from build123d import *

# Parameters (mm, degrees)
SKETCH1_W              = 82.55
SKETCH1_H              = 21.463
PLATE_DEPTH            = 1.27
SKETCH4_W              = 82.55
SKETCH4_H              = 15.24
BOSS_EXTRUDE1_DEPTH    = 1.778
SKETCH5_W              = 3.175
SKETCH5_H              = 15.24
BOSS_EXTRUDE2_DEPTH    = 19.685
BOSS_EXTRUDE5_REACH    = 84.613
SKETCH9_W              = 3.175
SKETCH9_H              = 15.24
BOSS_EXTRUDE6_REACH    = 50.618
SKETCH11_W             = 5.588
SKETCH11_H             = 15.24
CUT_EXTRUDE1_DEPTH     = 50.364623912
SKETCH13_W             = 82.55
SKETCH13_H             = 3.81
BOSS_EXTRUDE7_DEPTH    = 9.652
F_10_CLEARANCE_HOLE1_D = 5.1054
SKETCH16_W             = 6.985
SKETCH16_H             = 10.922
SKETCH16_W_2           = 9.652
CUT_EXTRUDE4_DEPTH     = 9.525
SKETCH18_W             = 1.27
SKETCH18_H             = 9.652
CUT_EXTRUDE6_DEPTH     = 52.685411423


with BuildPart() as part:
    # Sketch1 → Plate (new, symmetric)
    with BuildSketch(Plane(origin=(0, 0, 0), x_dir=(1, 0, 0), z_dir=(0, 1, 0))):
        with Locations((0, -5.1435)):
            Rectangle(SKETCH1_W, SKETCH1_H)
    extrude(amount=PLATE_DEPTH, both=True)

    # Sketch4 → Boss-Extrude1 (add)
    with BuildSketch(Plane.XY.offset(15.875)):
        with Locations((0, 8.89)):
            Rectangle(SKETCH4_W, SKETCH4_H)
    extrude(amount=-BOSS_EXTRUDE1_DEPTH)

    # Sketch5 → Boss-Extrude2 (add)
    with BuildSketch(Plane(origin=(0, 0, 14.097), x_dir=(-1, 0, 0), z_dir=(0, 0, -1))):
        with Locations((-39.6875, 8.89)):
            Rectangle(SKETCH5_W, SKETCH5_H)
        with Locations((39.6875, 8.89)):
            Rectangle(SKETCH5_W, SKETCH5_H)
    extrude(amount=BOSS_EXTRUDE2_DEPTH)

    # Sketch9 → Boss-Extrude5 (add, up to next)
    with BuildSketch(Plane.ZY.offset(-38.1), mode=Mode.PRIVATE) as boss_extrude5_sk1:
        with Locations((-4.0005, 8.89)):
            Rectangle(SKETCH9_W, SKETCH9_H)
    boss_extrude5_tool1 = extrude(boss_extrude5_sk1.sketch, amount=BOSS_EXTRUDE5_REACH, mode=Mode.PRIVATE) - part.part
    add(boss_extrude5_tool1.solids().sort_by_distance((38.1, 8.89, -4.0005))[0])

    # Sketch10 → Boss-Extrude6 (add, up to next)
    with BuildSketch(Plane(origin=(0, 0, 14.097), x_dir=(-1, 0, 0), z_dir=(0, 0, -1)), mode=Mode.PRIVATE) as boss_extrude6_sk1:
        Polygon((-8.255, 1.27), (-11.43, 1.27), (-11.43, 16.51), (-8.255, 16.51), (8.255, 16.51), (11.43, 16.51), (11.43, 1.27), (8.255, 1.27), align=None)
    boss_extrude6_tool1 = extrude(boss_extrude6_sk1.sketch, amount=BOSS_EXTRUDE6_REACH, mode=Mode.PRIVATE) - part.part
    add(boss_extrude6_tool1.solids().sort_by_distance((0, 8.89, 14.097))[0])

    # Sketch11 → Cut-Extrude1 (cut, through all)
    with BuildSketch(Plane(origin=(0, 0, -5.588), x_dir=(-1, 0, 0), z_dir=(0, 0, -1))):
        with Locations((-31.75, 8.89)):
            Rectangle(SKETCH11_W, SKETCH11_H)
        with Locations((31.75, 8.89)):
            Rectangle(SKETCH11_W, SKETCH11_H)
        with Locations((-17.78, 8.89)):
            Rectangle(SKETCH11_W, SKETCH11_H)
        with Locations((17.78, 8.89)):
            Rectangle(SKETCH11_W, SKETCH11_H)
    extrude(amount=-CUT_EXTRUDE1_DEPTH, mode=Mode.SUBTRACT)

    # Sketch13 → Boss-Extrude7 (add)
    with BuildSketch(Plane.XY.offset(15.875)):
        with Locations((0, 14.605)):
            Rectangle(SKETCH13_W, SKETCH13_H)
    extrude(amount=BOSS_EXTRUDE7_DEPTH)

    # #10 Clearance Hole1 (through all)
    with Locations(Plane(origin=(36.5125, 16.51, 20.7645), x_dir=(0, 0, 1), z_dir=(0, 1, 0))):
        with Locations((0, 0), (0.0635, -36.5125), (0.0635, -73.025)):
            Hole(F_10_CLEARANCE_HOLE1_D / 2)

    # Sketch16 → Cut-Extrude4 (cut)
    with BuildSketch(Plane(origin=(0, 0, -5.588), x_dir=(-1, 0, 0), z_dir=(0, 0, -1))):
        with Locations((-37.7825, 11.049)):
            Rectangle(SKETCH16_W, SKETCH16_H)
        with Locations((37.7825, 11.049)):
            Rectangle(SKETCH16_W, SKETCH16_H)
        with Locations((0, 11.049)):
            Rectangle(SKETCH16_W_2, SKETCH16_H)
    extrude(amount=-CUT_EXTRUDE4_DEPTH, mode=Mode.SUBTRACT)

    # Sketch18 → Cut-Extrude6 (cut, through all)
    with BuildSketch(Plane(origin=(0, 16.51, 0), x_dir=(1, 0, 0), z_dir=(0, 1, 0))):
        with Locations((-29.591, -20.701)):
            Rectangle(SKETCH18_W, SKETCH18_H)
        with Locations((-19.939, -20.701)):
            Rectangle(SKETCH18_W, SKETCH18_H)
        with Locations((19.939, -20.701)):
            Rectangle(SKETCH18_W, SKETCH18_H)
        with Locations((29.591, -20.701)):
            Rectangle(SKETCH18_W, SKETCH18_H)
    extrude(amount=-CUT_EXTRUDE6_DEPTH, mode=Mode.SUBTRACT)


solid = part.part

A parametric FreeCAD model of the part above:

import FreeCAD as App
import Part
import Sketcher
Q = App.Units.Quantity


def add_polygon(sketch, points):
    """Adds a closed chain of lines whose ends are joined by coincident constraints."""
    first, n = sketch.GeometryCount, len(points)
    for a, b in zip(points, points[1:] + points[:1]):
        sketch.addGeometry(Part.LineSegment(App.Vector(*a, 0), App.Vector(*b, 0)), False)
    for i in range(n):
        sketch.addConstraint(Sketcher.Constraint("Coincident", first + i, 2, first + (i + 1) % n, 1))

doc = App.newDocument("Part")
body = doc.addObject("PartDesign::Body", "Body")

# Sketch on XZ plane
sketch1 = body.newObject("Sketcher::SketchObject", "Sketch")
sketch1.AttachmentSupport = (doc.getObject("XZ_Plane"), [""])
sketch1.MapMode = "FlatFace"
add_polygon(sketch1, [(-41, -6), (-41, 16), (41, 16), (41, -6)])  # lines 0-3
sketch1.addConstraint(Sketcher.Constraint("Vertical", 0))
sketch1.addConstraint(Sketcher.Constraint("Horizontal", 1))
sketch1.addConstraint(Sketcher.Constraint("Vertical", 2))
sketch1.addConstraint(Sketcher.Constraint("Horizontal", 3))
sketch1.addConstraint(Sketcher.Constraint("DistanceX", 1, 1, 1, 2, Q("3.25 in")))
sketch1.addConstraint(Sketcher.Constraint("DistanceY", 0, 1, 0, 2, Q("0.845 in")))
sketch1.addConstraint(Sketcher.Constraint("DistanceY", 2, 2, -1, 1, Q("0.22 in")))
sketch1.addConstraint(Sketcher.Constraint("DistanceX", 0, 2, -1, 1, Q("1.625 in")))
pad1 = body.newObject("PartDesign::Pad", "Pad")
pad1.Profile = sketch1
pad1.Length = Q("0.1 in")
pad1.Midplane = True

# Sketch on XY plane
sketch2 = body.newObject("Sketcher::SketchObject", "Sketch001")
sketch2.AttachmentSupport = (doc.getObject("XY_Plane"), [""])
sketch2.MapMode = "FlatFace"
sketch2.AttachmentOffset = App.Placement(App.Vector(0, 0, 0.625 * 25.4), App.Rotation())
add_polygon(sketch2, [(-41, 17), (-41, 1), (41, 1), (41, 17)])  # lines 0-3
sketch2.addConstraint(Sketcher.Constraint("Vertical", 0))
sketch2.addConstraint(Sketcher.Constraint("Horizontal", 1))
sketch2.addConstraint(Sketcher.Constraint("Vertical", 2))
sketch2.addConstraint(Sketcher.Constraint("Horizontal", 3))
sketch2.addConstraint(Sketcher.Constraint("DistanceY", 0, 2, 0, 1, Q("0.6 in")))
sketch2.addConstraint(Sketcher.Constraint("DistanceX", 1, 1, 1, 2, Q("3.25 in")))
sketch2.addConstraint(Sketcher.Constraint("DistanceY", -1, 1, 0, 2, Q("0.05 in")))
sketch2.addConstraint(Sketcher.Constraint("DistanceX", 0, 2, -1, 1, Q("1.625 in")))
pad2 = body.newObject("PartDesign::Pad", "Pad001")
pad2.Profile = sketch2
pad2.Length = Q("0.07 in")
pad2.Reversed = True

# Sketch on XY plane
sketch3 = body.newObject("Sketcher::SketchObject", "Sketch002")
sketch3.AttachmentSupport = (doc.getObject("XY_Plane"), [""])
sketch3.MapMode = "FlatFace"
sketch3.AttachmentOffset = App.Placement(App.Vector(0, 0, 0.555 * 25.4), App.Rotation())
add_polygon(sketch3, [(41.3, 16.5), (41.3, 1.3), (38.1, 1.3), (38.1, 16.5)])  # lines 0-3
add_polygon(sketch3, [(-38.1, 16.5), (-38.1, 1.3), (-41.3, 1.3), (-41.3, 16.5)])  # lines 4-7
sketch3.addConstraint(Sketcher.Constraint("Vertical", 0))
sketch3.addConstraint(Sketcher.Constraint("Horizontal", 1))
sketch3.addConstraint(Sketcher.Constraint("Vertical", 2))
sketch3.addConstraint(Sketcher.Constraint("Horizontal", 3))
sketch3.addConstraint(Sketcher.Constraint("Vertical", 4))
sketch3.addConstraint(Sketcher.Constraint("Horizontal", 5))
sketch3.addConstraint(Sketcher.Constraint("Vertical", 6))
sketch3.addConstraint(Sketcher.Constraint("Horizontal", 7))
sketch3.addConstraint(Sketcher.Constraint("Symmetric", 1, 2, 4, 2, -2))
sketch3.addConstraint(Sketcher.Constraint("Symmetric", 3, 2, 6, 2, -2))
sketch3.addConstraint(Sketcher.Constraint("DistanceY", 0, 2, 0, 1, Q("0.6 in")))
sketch3.addConstraint(Sketcher.Constraint("DistanceX", 4, 2, 1, 2, Q("3 in")))
sketch3.addConstraint(Sketcher.Constraint("DistanceX", 1, 2, 1, 1, Q("0.125 in")))
sketch3.addConstraint(Sketcher.Constraint("DistanceY", -1, 1, 0, 2, Q("0.05 in")))
pad3 = body.newObject("PartDesign::Pad", "Pad002")
pad3.Profile = sketch3
pad3.Length = Q("0.775 in")
pad3.Reversed = True

# Sketch on YZ plane
sketch4 = body.newObject("Sketcher::SketchObject", "Sketch003")
sketch4.AttachmentSupport = (doc.getObject("YZ_Plane"), [""])
sketch4.MapMode = "FlatFace"
sketch4.AttachmentOffset = App.Placement(App.Vector(0, 0, 1.5 * 25.4), App.Rotation())
add_polygon(sketch4, [(16.5, -5.6), (1.3, -5.6), (1.3, -2.4), (16.5, -2.4)])  # lines 0-3
sketch4.addConstraint(Sketcher.Constraint("Horizontal", 0))
sketch4.addConstraint(Sketcher.Constraint("Vertical", 1))
sketch4.addConstraint(Sketcher.Constraint("Horizontal", 2))
sketch4.addConstraint(Sketcher.Constraint("Vertical", 3))
sketch4.addConstraint(Sketcher.Constraint("DistanceX", 0, 2, 0, 1, Q("0.6 in")))
sketch4.addConstraint(Sketcher.Constraint("DistanceY", 1, 1, 1, 2, Q("0.125 in")))
sketch4.addConstraint(Sketcher.Constraint("DistanceX", -1, 1, 0, 2, Q("0.05 in")))
sketch4.addConstraint(Sketcher.Constraint("DistanceY", 0, 2, -1, 1, Q("0.22 in")))
pad4 = body.newObject("PartDesign::Pad", "Pad003")
pad4.Profile = sketch4
pad4.Type = "UpToFirst"
pad4.Reversed = True

# Sketch on XY plane
sketch5 = body.newObject("Sketcher::SketchObject", "Sketch004")
sketch5.AttachmentSupport = (doc.getObject("XY_Plane"), [""])
sketch5.MapMode = "FlatFace"
sketch5.AttachmentOffset = App.Placement(App.Vector(0, 0, 0.555 * 25.4), App.Rotation())
add_polygon(sketch5, [(11, 1), (-11, 1), (-11, 17), (11, 17)])  # lines 0-3
sketch5.addConstraint(Sketcher.Constraint("Horizontal", 0))
sketch5.addConstraint(Sketcher.Constraint("Vertical", 1))
sketch5.addConstraint(Sketcher.Constraint("Horizontal", 2))
sketch5.addConstraint(Sketcher.Constraint("Vertical", 3))
sketch5.addConstraint(Sketcher.Constraint("DistanceX", 0, 2, 0, 1, Q("0.9 in")))
sketch5.addConstraint(Sketcher.Constraint("DistanceY", 1, 1, 1, 2, Q("0.6 in")))
sketch5.addConstraint(Sketcher.Constraint("DistanceX", 0, 2, -1, 1, Q("0.45 in")))
sketch5.addConstraint(Sketcher.Constraint("DistanceY", -1, 1, 0, 2, Q("0.05 in")))
pad5 = body.newObject("PartDesign::Pad", "Pad004")
pad5.Profile = sketch5
pad5.Type = "UpToFirst"
pad5.Reversed = True

# Sketch on XY plane
sketch6 = body.newObject("Sketcher::SketchObject", "Sketch005")
sketch6.AttachmentSupport = (doc.getObject("XY_Plane"), [""])
sketch6.MapMode = "FlatFace"
sketch6.AttachmentOffset = App.Placement(App.Vector(0, 0, -0.22 * 25.4), App.Rotation())
add_polygon(sketch6, [(35, 17), (35, 1), (29, 1), (29, 17)])  # lines 0-3
add_polygon(sketch6, [(-29, 17), (-29, 1), (-35, 1), (-35, 17)])  # lines 4-7
add_polygon(sketch6, [(21, 17), (21, 1), (15, 1), (15, 17)])  # lines 8-11
add_polygon(sketch6, [(-15, 17), (-15, 1), (-21, 1), (-21, 17)])  # lines 12-15
sketch6.addConstraint(Sketcher.Constraint("Vertical", 0))
sketch6.addConstraint(Sketcher.Constraint("Horizontal", 1))
sketch6.addConstraint(Sketcher.Constraint("Vertical", 2))
sketch6.addConstraint(Sketcher.Constraint("Horizontal", 3))
sketch6.addConstraint(Sketcher.Constraint("Vertical", 4))
sketch6.addConstraint(Sketcher.Constraint("Horizontal", 5))
sketch6.addConstraint(Sketcher.Constraint("Vertical", 6))
sketch6.addConstraint(Sketcher.Constraint("Horizontal", 7))
sketch6.addConstraint(Sketcher.Constraint("Vertical", 8))
sketch6.addConstraint(Sketcher.Constraint("Horizontal", 9))
sketch6.addConstraint(Sketcher.Constraint("Vertical", 10))
sketch6.addConstraint(Sketcher.Constraint("Horizontal", 11))
sketch6.addConstraint(Sketcher.Constraint("Vertical", 12))
sketch6.addConstraint(Sketcher.Constraint("Horizontal", 13))
sketch6.addConstraint(Sketcher.Constraint("Vertical", 14))
sketch6.addConstraint(Sketcher.Constraint("Horizontal", 15))
sketch6.addConstraint(Sketcher.Constraint("Symmetric", 1, 2, 4, 2, -2))
sketch6.addConstraint(Sketcher.Constraint("Symmetric", 3, 2, 6, 2, -2))
sketch6.addConstraint(Sketcher.Constraint("Symmetric", 9, 2, 12, 2, -2))
sketch6.addConstraint(Sketcher.Constraint("Symmetric", 11, 2, 14, 2, -2))
sketch6.addConstraint(Sketcher.Constraint("Horizontal", 5, 2, 8, 2))
sketch6.addConstraint(Sketcher.Constraint("Horizontal", 7, 2, 10, 2))
sketch6.addConstraint(Sketcher.Constraint("Equal", 7, 9))
sketch6.addConstraint(Sketcher.Constraint("DistanceY", 0, 2, 0, 1, Q("0.6 in")))
sketch6.addConstraint(Sketcher.Constraint("DistanceX", 1, 2, 1, 1, Q("0.22 in")))
sketch6.addConstraint(Sketcher.Constraint("DistanceX", 4, 2, 0, 2, Q("2.5 in")))
sketch6.addConstraint(Sketcher.Constraint("DistanceY", -1, 1, 0, 2, Q("0.05 in")))
sketch6.addConstraint(Sketcher.Constraint("DistanceX", -1, 1, 8, 2, Q("0.81 in")))
pocket1 = body.newObject("PartDesign::Pocket", "Pocket")
pocket1.Profile = sketch6
pocket1.Type = "ThroughAll"
pocket1.Reversed = True

# Sketch on XY plane
sketch7 = body.newObject("Sketcher::SketchObject", "Sketch006")
sketch7.AttachmentSupport = (doc.getObject("XY_Plane"), [""])
sketch7.MapMode = "FlatFace"
sketch7.AttachmentOffset = App.Placement(App.Vector(0, 0, 0.625 * 25.4), App.Rotation())
add_polygon(sketch7, [(-41.3, 16.5), (-41.3, 12.7), (41.3, 12.7), (41.3, 16.5)])  # lines 0-3
sketch7.addConstraint(Sketcher.Constraint("Vertical", 0))
sketch7.addConstraint(Sketcher.Constraint("Horizontal", 1))
sketch7.addConstraint(Sketcher.Constraint("Vertical", 2))
sketch7.addConstraint(Sketcher.Constraint("Horizontal", 3))
sketch7.addConstraint(Sketcher.Constraint("DistanceX", 1, 1, 1, 2, Q("3.25 in")))
sketch7.addConstraint(Sketcher.Constraint("DistanceY", 0, 2, 0, 1, Q("0.15 in")))
sketch7.addConstraint(Sketcher.Constraint("DistanceY", -1, 1, 0, 2, Q("0.5 in")))
sketch7.addConstraint(Sketcher.Constraint("DistanceX", 0, 2, -1, 1, Q("1.625 in")))
pad6 = body.newObject("PartDesign::Pad", "Pad005")
pad6.Profile = sketch7
pad6.Length = Q("0.38 in")

# Sketch on XZ plane
sketch8 = body.newObject("Sketcher::SketchObject", "Sketch007")
sketch8.AttachmentSupport = (doc.getObject("XZ_Plane"), [""])
sketch8.MapMode = "FlatFace"
sketch8.AttachmentOffset = App.Placement(App.Vector(0, 0, -0.65 * 25.4), App.Rotation())
sketch8.addGeometry(Part.Circle(App.Vector(36.5, 20.8, 0), App.Vector(0, 0, 1), 2.6), False)
sketch8.addGeometry(Part.Circle(App.Vector(0, 20.8, 0), App.Vector(0, 0, 1), 2.6), False)
sketch8.addGeometry(Part.Circle(App.Vector(-36.5, 20.8, 0), App.Vector(0, 0, 1), 2.6), False)
sketch8.addConstraint(Sketcher.Constraint("Equal", 0, 1))
sketch8.addConstraint(Sketcher.Constraint("Equal", 1, 2))
sketch8.addConstraint(Sketcher.Constraint("PointOnObject", 1, 3, -2))
sketch8.addConstraint(Sketcher.Constraint("Horizontal", 1, 3, 2, 3))
sketch8.addConstraint(Sketcher.Constraint("Diameter", 0, Q("0.201 in")))
sketch8.addConstraint(Sketcher.Constraint("DistanceY", -1, 1, 1, 3, Q("0.82 in")))
sketch8.addConstraint(Sketcher.Constraint("DistanceX", -1, 1, 0, 3, Q("1.4375 in")))
sketch8.addConstraint(Sketcher.Constraint("DistanceX", 2, 3, -1, 1, Q("1.4375 in")))
sketch8.addConstraint(Sketcher.Constraint("DistanceY", -1, 1, 0, 3, Q("0.8175 in")))
doc.recompute()
hole = body.newObject("PartDesign::Hole", "Hole")
hole.Profile = sketch8
hole.ThreadType = "None"
hole.Diameter = Q("0.201 in")
hole.DepthType = "ThroughAll"
hole.Reversed = True

# Sketch on XY plane
sketch9 = body.newObject("Sketcher::SketchObject", "Sketch008")
sketch9.AttachmentSupport = (doc.getObject("XY_Plane"), [""])
sketch9.MapMode = "FlatFace"
sketch9.AttachmentOffset = App.Placement(App.Vector(0, 0, -0.22 * 25.4), App.Rotation())
add_polygon(sketch9, [(41, 17), (41, 6), (34, 6), (34, 17)])  # lines 0-3
add_polygon(sketch9, [(-34, 17), (-34, 6), (-41, 6), (-41, 17)])  # lines 4-7
add_polygon(sketch9, [(5, 17), (5, 6), (-5, 6), (-5, 17)])  # lines 8-11
sketch9.addConstraint(Sketcher.Constraint("Vertical", 0))
sketch9.addConstraint(Sketcher.Constraint("Horizontal", 1))
sketch9.addConstraint(Sketcher.Constraint("Vertical", 2))
sketch9.addConstraint(Sketcher.Constraint("Horizontal", 3))
sketch9.addConstraint(Sketcher.Constraint("Vertical", 4))
sketch9.addConstraint(Sketcher.Constraint("Horizontal", 5))
sketch9.addConstraint(Sketcher.Constraint("Vertical", 6))
sketch9.addConstraint(Sketcher.Constraint("Horizontal", 7))
sketch9.addConstraint(Sketcher.Constraint("Vertical", 8))
sketch9.addConstraint(Sketcher.Constraint("Horizontal", 9))
sketch9.addConstraint(Sketcher.Constraint("Vertical", 10))
sketch9.addConstraint(Sketcher.Constraint("Horizontal", 11))
sketch9.addConstraint(Sketcher.Constraint("Symmetric", 1, 2, 4, 2, -2))
sketch9.addConstraint(Sketcher.Constraint("Symmetric", 3, 2, 6, 2, -2))
sketch9.addConstraint(Sketcher.Constraint("Horizontal", 5, 2, 8, 2))
sketch9.addConstraint(Sketcher.Constraint("Horizontal", 7, 2, 10, 2))
sketch9.addConstraint(Sketcher.Constraint("DistanceX", 9, 2, 9, 1, Q("0.38 in")))
sketch9.addConstraint(Sketcher.Constraint("DistanceY", 0, 2, 0, 1, Q("0.43 in")))
sketch9.addConstraint(Sketcher.Constraint("DistanceX", 4, 2, 1, 2, Q("2.7 in")))
sketch9.addConstraint(Sketcher.Constraint("DistanceX", 1, 2, 1, 1, Q("0.275 in")))
sketch9.addConstraint(Sketcher.Constraint("DistanceY", -1, 1, 0, 2, Q("0.22 in")))
sketch9.addConstraint(Sketcher.Constraint("DistanceX", -1, 1, 8, 2, Q("0.19 in")))
pocket2 = body.newObject("PartDesign::Pocket", "Pocket001")
pocket2.Profile = sketch9
pocket2.Length = Q("0.375 in")
pocket2.Reversed = True

# Sketch on XZ plane
sketch10 = body.newObject("Sketcher::SketchObject", "Sketch009")
sketch10.AttachmentSupport = (doc.getObject("XZ_Plane"), [""])
sketch10.MapMode = "FlatFace"
sketch10.AttachmentOffset = App.Placement(App.Vector(0, 0, -0.65 * 25.4), App.Rotation())
add_polygon(sketch10, [(-30.2, 15.9), (-30.2, 25.5), (-29, 25.5), (-29, 15.9)])  # lines 0-3
add_polygon(sketch10, [(-20.6, 15.9), (-20.6, 25.5), (-19.3, 25.5), (-19.3, 15.9)])  # lines 4-7
add_polygon(sketch10, [(19.3, 15.9), (19.3, 25.5), (20.6, 25.5), (20.6, 15.9)])  # lines 8-11
add_polygon(sketch10, [(29, 15.9), (29, 25.5), (30.2, 25.5), (30.2, 15.9)])  # lines 12-15
sketch10.addConstraint(Sketcher.Constraint("Vertical", 0))
sketch10.addConstraint(Sketcher.Constraint("Horizontal", 1))
sketch10.addConstraint(Sketcher.Constraint("Vertical", 2))
sketch10.addConstraint(Sketcher.Constraint("Horizontal", 3))
sketch10.addConstraint(Sketcher.Constraint("Vertical", 4))
sketch10.addConstraint(Sketcher.Constraint("Horizontal", 5))
sketch10.addConstraint(Sketcher.Constraint("Vertical", 6))
sketch10.addConstraint(Sketcher.Constraint("Horizontal", 7))
sketch10.addConstraint(Sketcher.Constraint("Vertical", 8))
sketch10.addConstraint(Sketcher.Constraint("Horizontal", 9))
sketch10.addConstraint(Sketcher.Constraint("Vertical", 10))
sketch10.addConstraint(Sketcher.Constraint("Horizontal", 11))
sketch10.addConstraint(Sketcher.Constraint("Vertical", 12))
sketch10.addConstraint(Sketcher.Constraint("Horizontal", 13))
sketch10.addConstraint(Sketcher.Constraint("Vertical", 14))
sketch10.addConstraint(Sketcher.Constraint("Horizontal", 15))
sketch10.addConstraint(Sketcher.Constraint("Symmetric", 5, 2, 8, 2, -2))
sketch10.addConstraint(Sketcher.Constraint("Symmetric", 7, 2, 10, 2, -2))
sketch10.addConstraint(Sketcher.Constraint("Symmetric", 1, 2, 12, 2, -2))
sketch10.addConstraint(Sketcher.Constraint("Symmetric", 3, 2, 14, 2, -2))
sketch10.addConstraint(Sketcher.Constraint("Horizontal", 1, 2, 4, 2))
sketch10.addConstraint(Sketcher.Constraint("Horizontal", 3, 2, 6, 2))
sketch10.addConstraint(Sketcher.Constraint("Equal", 3, 5))
sketch10.addConstraint(Sketcher.Constraint("DistanceX", 1, 1, 1, 2, Q("0.05 in")))
sketch10.addConstraint(Sketcher.Constraint("DistanceY", 0, 1, 0, 2, Q("0.38 in")))
sketch10.addConstraint(Sketcher.Constraint("DistanceX", 1, 2, 8, 2, Q("1.9 in")))
sketch10.addConstraint(Sketcher.Constraint("DistanceX", 0, 2, -1, 1, Q("1.19 in")))
sketch10.addConstraint(Sketcher.Constraint("DistanceY", -1, 1, 0, 2, Q("1.005 in")))
pocket3 = body.newObject("PartDesign::Pocket", "Pocket002")
pocket3.Profile = sketch10
pocket3.Type = "ThroughAll"
pocket3.Reversed = True

doc.recompute()
